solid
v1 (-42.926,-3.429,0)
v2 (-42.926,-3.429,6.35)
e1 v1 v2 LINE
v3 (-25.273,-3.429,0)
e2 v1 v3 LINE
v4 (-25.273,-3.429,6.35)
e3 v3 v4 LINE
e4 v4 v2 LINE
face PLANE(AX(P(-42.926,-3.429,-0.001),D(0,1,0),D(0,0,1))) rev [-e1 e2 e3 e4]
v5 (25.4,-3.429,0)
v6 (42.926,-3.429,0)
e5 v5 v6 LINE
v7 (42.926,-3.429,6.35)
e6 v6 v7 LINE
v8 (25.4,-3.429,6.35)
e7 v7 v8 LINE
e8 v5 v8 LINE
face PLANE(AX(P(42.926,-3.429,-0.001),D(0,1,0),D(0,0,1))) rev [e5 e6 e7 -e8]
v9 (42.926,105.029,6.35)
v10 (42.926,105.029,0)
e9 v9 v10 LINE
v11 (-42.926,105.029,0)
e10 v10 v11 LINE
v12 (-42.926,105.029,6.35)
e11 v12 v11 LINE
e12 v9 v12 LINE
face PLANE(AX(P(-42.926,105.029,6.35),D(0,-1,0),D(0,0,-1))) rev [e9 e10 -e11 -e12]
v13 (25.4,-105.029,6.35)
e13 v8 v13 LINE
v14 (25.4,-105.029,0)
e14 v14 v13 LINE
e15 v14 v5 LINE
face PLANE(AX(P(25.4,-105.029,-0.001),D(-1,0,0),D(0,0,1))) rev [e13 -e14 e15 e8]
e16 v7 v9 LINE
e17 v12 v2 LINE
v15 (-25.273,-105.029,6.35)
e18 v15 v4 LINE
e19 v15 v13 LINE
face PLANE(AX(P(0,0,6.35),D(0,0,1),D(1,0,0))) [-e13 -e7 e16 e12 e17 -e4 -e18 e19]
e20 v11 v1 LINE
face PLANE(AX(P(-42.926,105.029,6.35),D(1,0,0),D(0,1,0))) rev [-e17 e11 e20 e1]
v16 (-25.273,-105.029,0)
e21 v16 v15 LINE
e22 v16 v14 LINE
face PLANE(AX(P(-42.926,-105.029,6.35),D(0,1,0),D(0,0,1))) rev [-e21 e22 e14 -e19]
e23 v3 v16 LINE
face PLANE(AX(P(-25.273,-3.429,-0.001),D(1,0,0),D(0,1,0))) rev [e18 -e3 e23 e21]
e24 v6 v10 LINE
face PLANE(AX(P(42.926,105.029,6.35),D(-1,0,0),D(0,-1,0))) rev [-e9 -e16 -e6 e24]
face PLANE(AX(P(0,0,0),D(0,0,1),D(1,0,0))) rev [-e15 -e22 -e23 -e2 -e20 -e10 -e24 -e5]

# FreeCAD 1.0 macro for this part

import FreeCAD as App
import Part
import Sketcher
from FreeCAD import Vector
Q = App.Units.Quantity

doc = App.newDocument("Part")
body = doc.addObject("PartDesign::Body", "Body")

sketch1 = body.newObject("Sketcher::SketchObject", "Sketch")
sketch1.AttachmentSupport = (doc.getObject("XY_Plane"), [""])
sketch1.MapMode = "FlatFace"
sketch1.addGeometry([
    Part.LineSegment(Vector(-43, 105, 0), Vector(-43, -105, 0)),
    Part.LineSegment(Vector(-43, -105, 0), Vector(43, -105, 0)),
    Part.LineSegment(Vector(43, -105, 0), Vector(43, 105, 0)),
    Part.LineSegment(Vector(43, 105, 0), Vector(-43, 105, 0)),
], False)
sketch1.addConstraint([
    Sketcher.Constraint("Coincident", 0, 2, 1, 1),
    Sketcher.Constraint("Coincident", 1, 2, 2, 1),
    Sketcher.Constraint("Coincident", 2, 2, 3, 1),
    Sketcher.Constraint("Coincident", 3, 2, 0, 1),
    Sketcher.Constraint("Vertical", 0),
    Sketcher.Constraint("Horizontal", 1),
    Sketcher.Constraint("Vertical", 2),
    Sketcher.Constraint("Horizontal", 3),
    Sketcher.Constraint("Symmetric", 0, 2, 2, 2, -1, 1),
    Sketcher.Constraint("DistanceX", 1, 1, 1, 2, Q("3.38 in")),
    Sketcher.Constraint("DistanceY", 0, 2, 0, 1, Q("8.27 in")),
])
pad1 = body.newObject("PartDesign::Pad", "Pad")
pad1.Profile = sketch1
pad1.Length = Q("0.25 in")

sketch2 = body.newObject("Sketcher::SketchObject", "Sketch001")
sketch2.AttachmentSupport = (doc.getObject("XY_Plane"), [""])
sketch2.MapMode = "FlatFace"
sketch2.AttachmentOffset = App.Placement(Vector(0, 0, 0.25 * 25.4), App.Rotation())
sketch2.addGeometry([
    Part.LineSegment(Vector(25, -3, 0), Vector(25, -105, 0)),
    Part.LineSegment(Vector(25, -105, 0), Vector(43, -105, 0)),
    Part.LineSegment(Vector(43, -105, 0), Vector(43, -3, 0)),
    Part.LineSegment(Vector(43, -3, 0), Vector(25, -3, 0)),
], False)
sketch2.addConstraint([
    Sketcher.Constraint("Coincident", 0, 2, 1, 1),
    Sketcher.Constraint("Coincident", 1, 2, 2, 1),
    Sketcher.Constraint("Coincident", 2, 2, 3, 1),
    Sketcher.Constraint("Coincident", 3, 2, 0, 1),
    Sketcher.Constraint("Vertical", 0),
    Sketcher.Constraint("Horizontal", 1),
    Sketcher.Constraint("Vertical", 2),
    Sketcher.Constraint("Horizontal", 3),
    Sketcher.Constraint("DistanceY", 0, 2, 0, 1, Q("4 in")),
    Sketcher.Constraint("DistanceX", -1, 1, 0, 2, Q("1 in")),
    Sketcher.Constraint("DistanceX", 1, 1, 1, 2, Q("0.69 in")),
    Sketcher.Constraint("DistanceY", 0, 2, -1, 1, Q("4.135 in")),
])
pocket1 = body.newObject("PartDesign::Pocket", "Pocket")
pocket1.Profile = sketch2
pocket1.Type = "UpToFirst"

sketch3 = body.newObject("Sketcher::SketchObject", "Sketch002")
sketch3.AttachmentSupport = (doc.getObject("XY_Plane"), [""])
sketch3.MapMode = "FlatFace"
sketch3.AttachmentOffset = App.Placement(Vector(0, 0, 0.25 * 25.4), App.Rotation())
sketch3.addGeometry([
    Part.LineSegment(Vector(-43, -3, 0), Vector(-43, -105, 0)),
    Part.LineSegment(Vector(-43, -105, 0), Vector(-25, -105, 0)),
    Part.LineSegment(Vector(-25, -105, 0), Vector(-25, -3, 0)),
    Part.LineSegment(Vector(-25, -3, 0), Vector(-43, -3, 0)),
], False)
sketch3.addConstraint([
    Sketcher.Constraint("Coincident", 0, 2, 1, 1),
    Sketcher.Constraint("Coincident", 1, 2, 2, 1),
    Sketcher.Constraint("Coincident", 2, 2, 3, 1),
    Sketcher.Constraint("Coincident", 3, 2, 0, 1),
    Sketcher.Constraint("Vertical", 0),
    Sketcher.Constraint("Horizontal", 1),
    Sketcher.Constraint("Vertical", 2),
    Sketcher.Constraint("Horizontal", 3),
    Sketcher.Constraint("DistanceY", 0, 2, 0, 1, Q("4 in")),
    Sketcher.Constraint("DistanceX", 1, 1, 1, 2, Q("0.695 in")),
    Sketcher.Constraint("DistanceX", 0, 2, -1, 1, Q("1.69 in")),
    Sketcher.Constraint("DistanceY", 0, 2, -1, 1, Q("4.135 in")),
])
pocket2 = body.newObject("PartDesign::Pocket", "Pocket001")
pocket2.Profile = sketch3
pocket2.Type = "UpToFirst"

doc.recompute()
